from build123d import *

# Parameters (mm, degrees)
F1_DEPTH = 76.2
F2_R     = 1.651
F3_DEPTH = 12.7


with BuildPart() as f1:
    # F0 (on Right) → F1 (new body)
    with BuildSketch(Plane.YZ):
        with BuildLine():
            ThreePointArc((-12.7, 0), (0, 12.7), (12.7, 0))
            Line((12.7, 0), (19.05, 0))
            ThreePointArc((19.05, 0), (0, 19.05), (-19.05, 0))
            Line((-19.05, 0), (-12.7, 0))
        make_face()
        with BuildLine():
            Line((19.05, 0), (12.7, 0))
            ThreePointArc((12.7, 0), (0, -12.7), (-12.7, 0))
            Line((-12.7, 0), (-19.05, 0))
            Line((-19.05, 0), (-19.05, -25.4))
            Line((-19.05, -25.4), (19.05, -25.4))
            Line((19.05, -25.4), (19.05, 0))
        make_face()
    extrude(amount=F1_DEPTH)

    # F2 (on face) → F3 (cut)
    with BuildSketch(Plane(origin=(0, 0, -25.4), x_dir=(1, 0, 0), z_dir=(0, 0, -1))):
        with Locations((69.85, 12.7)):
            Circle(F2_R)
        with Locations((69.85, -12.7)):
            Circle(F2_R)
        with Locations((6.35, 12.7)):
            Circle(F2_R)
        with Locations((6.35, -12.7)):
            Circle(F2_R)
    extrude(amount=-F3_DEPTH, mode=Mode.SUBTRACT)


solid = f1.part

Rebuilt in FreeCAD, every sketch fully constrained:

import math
import FreeCAD as App
import Part
import Sketcher

V = App.Vector
Q = App.Units.Quantity

doc = App.newDocument("Part")
body = doc.addObject("PartDesign::Body", "Body")

# Sketch on YZ plane
sketch1 = body.newObject("Sketcher::SketchObject", "Sketch")
sketch1.AttachmentSupport = (doc.getObject("YZ_Plane"), [""])
sketch1.MapMode = "FlatFace"
sketch1.addGeometry([
    Part.ArcOfCircle(Part.Circle(V(0, 0, 0), V(0, 0, 1), 19.05), math.radians(0), math.radians(180)),  # 0
    Part.LineSegment(V(-19.05, 0, 0), V(-19.05, -25.4, 0)),  # 1
    Part.LineSegment(V(-19.05, -25.4, 0), V(19.05, -25.4, 0)),  # 2
    Part.LineSegment(V(19.05, -25.4, 0), V(19.05, 0, 0)),  # 3
    Part.Circle(V(0, 0, 0), V(0, 0, 1), 12.7),  # 4
], False)
sketch1.addConstraint([
    Sketcher.Constraint("Tangent", 0, 2, 1, 1),
    Sketcher.Constraint("Coincident", 1, 2, 2, 1),
    Sketcher.Constraint("Coincident", 2, 2, 3, 1),
    Sketcher.Constraint("Tangent", 3, 2, 0, 1),
    Sketcher.Constraint("Vertical", 1),
    Sketcher.Constraint("Horizontal", 2),
    Sketcher.Constraint("Vertical", 3),
    Sketcher.Constraint("Coincident", 0, 3, -1, 1),
    Sketcher.Constraint("Coincident", 4, 3, -1, 1),
    Sketcher.Constraint("Diameter", 4, Q("1 in")),
    Sketcher.Constraint("DistanceY", 1, 2, 1, 1, Q("1 in")),
    Sketcher.Constraint("Radius", 0, Q("0.75 in")),
])
pad1 = body.newObject("PartDesign::Pad", "Pad")
pad1.Profile = sketch1
pad1.Length = Q("3 in")

# Sketch on XY plane
sketch2 = body.newObject("Sketcher::SketchObject", "Sketch001")
sketch2.AttachmentSupport = (doc.getObject("XY_Plane"), [""])
sketch2.MapMode = "FlatFace"
sketch2.AttachmentOffset = App.Placement(V(0, 0, -1 * 25.4), App.Rotation())
sketch2.addGeometry([
    Part.Circle(V(69.85, -12.7, 0), V(0, 0, 1), 1.651),
    Part.Circle(V(69.85, 12.7, 0), V(0, 0, 1), 1.651),
    Part.Circle(V(6.35, -12.7, 0), V(0, 0, 1), 1.651),
    Part.Circle(V(6.35, 12.7, 0), V(0, 0, 1), 1.651),
], False)
sketch2.addConstraint([
    Sketcher.Constraint("Equal", 0, 1),
    Sketcher.Constraint("Equal", 1, 2),
    Sketcher.Constraint("Equal", 2, 3),
    Sketcher.Constraint("Symmetric", 0, 3, 1, 3, -1),
    Sketcher.Constraint("Symmetric", 2, 3, 3, 3, -1),
    Sketcher.Constraint("Horizontal", 0, 3, 2, 3),
    Sketcher.Constraint("Diameter", 0, Q("0.13 in")),
    Sketcher.Constraint("DistanceY", 0, 3, 1, 3, Q("1 in")),
    Sketcher.Constraint("DistanceX", 2, 3, 0, 3, Q("2.5 in")),
    Sketcher.Constraint("DistanceX", -1, 1, 0, 3, Q("2.75 in")),
])
pocket1 = body.newObject("PartDesign::Pocket", "Pocket")
pocket1.Profile = sketch2
pocket1.Length = Q("0.5 in")
pocket1.Reversed = True

doc.recompute()
